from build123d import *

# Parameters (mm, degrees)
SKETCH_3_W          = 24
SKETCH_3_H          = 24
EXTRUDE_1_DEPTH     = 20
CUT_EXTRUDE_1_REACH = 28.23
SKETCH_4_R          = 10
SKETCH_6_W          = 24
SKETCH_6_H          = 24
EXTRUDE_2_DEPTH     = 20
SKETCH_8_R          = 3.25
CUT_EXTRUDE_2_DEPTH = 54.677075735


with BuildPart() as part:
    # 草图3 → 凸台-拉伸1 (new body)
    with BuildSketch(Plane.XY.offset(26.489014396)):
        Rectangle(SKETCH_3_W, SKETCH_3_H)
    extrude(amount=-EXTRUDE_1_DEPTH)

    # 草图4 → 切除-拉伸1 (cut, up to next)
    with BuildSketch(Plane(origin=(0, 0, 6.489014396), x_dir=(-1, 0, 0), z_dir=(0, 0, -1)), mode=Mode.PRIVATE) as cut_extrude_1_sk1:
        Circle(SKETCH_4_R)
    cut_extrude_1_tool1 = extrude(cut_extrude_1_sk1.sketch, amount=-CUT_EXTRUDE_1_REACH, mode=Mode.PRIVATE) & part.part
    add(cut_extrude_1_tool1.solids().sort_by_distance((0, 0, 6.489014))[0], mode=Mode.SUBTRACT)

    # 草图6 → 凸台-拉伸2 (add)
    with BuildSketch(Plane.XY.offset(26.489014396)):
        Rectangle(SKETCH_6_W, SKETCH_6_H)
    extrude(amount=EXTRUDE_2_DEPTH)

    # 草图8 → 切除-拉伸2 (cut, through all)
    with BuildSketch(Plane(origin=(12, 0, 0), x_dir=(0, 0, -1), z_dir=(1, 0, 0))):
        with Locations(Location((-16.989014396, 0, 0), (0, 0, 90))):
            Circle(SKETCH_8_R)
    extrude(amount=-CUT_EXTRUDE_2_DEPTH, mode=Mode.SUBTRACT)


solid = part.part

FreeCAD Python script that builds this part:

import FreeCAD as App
import Part
import Sketcher
from FreeCAD import Vector


def add_polygon(sketch, points):
    """Adds a closed chain of lines whose ends are joined by coincident constraints."""
    first, n = sketch.GeometryCount, len(points)
    for a, b in zip(points, points[1:] + points[:1]):
        sketch.addGeometry(Part.LineSegment(App.Vector(*a, 0), App.Vector(*b, 0)), False)
    for i in range(n):
        sketch.addConstraint(Sketcher.Constraint("Coincident", first + i, 2, first + (i + 1) % n, 1))

doc = App.newDocument("Part")
params = doc.addObject("Spreadsheet::Sheet", "Params")
for row, (alias, value) in enumerate([
    ("sketch1_width", "24 mm"),
    ("pad1_length", "20 mm"),
    ("sketch2_diameter", "20 mm"),
    ("sketch3_width", "24 mm"),
    ("pad2_length", "20 mm"),
    ("sketch4_diameter", "6.5 mm"),
], start=1):
    params.set(f"A{row}", alias)
    params.set(f"B{row}", "=" + value)
    params.setAlias(f"B{row}", alias)

body = doc.addObject("PartDesign::Body", "Body")

sketch1 = doc.addObject("Sketcher::SketchObject", "Sketch")
body.addObject(sketch1)
sketch1.AttachmentSupport = (doc.XY_Plane, [""])
sketch1.MapMode = "FlatFace"
sketch1.AttachmentOffset = App.Placement(Vector(0, 0, 26.489014), App.Rotation())
add_polygon(sketch1, [(-12, 12), (-12, -12), (12, -12), (12, 12)])
sketch1.addConstraint(Sketcher.Constraint("Vertical", 0))
sketch1.addConstraint(Sketcher.Constraint("Horizontal", 1))
sketch1.addConstraint(Sketcher.Constraint("Vertical", 2))
sketch1.addConstraint(Sketcher.Constraint("Horizontal", 3))
sketch1.addConstraint(Sketcher.Constraint("Symmetric", 0, 2, 2, 2, -1, 1))
sketch1.addConstraint(Sketcher.Constraint("Equal", 3, 0))
sketch1.addConstraint(Sketcher.Constraint("DistanceX", 1, 1, 1, 2, 24.0))
sketch1.setExpression("Constraints[10]", "Params.sketch1_width")
pad1 = doc.addObject("PartDesign::Pad", "Pad")
body.addObject(pad1)
pad1.Profile = sketch1
pad1.setExpression("Length", "Params.pad1_length")
pad1.Reversed = True

sketch2 = doc.addObject("Sketcher::SketchObject", "Sketch001")
body.addObject(sketch2)
sketch2.AttachmentSupport = (doc.XY_Plane, [""])
sketch2.MapMode = "FlatFace"
sketch2.AttachmentOffset = App.Placement(Vector(0, 0, 6.489014), App.Rotation())
sketch2.addGeometry(Part.Circle(Vector(0, 0, 0), Vector(0, 0, 1), 10), False)
sketch2.addConstraint(Sketcher.Constraint("Coincident", 0, 3, -1, 1))
sketch2.addConstraint(Sketcher.Constraint("Diameter", 0, 20.0))
sketch2.setExpression("Constraints[1]", "Params.sketch2_diameter")
pocket1 = doc.addObject("PartDesign::Pocket", "Pocket")
body.addObject(pocket1)
pocket1.Profile = sketch2
pocket1.Type = "UpToFirst"
pocket1.Reversed = True

sketch3 = doc.addObject("Sketcher::SketchObject", "Sketch002")
body.addObject(sketch3)
sketch3.AttachmentSupport = (doc.XY_Plane, [""])
sketch3.MapMode = "FlatFace"
sketch3.AttachmentOffset = App.Placement(Vector(0, 0, 26.489014), App.Rotation())
add_polygon(sketch3, [(-12, 12), (-12, -12), (12, -12), (12, 12)])
sketch3.addConstraint(Sketcher.Constraint("Vertical", 0))
sketch3.addConstraint(Sketcher.Constraint("Horizontal", 1))
sketch3.addConstraint(Sketcher.Constraint("Vertical", 2))
sketch3.addConstraint(Sketcher.Constraint("Horizontal", 3))
sketch3.addConstraint(Sketcher.Constraint("Symmetric", 0, 2, 2, 2, -1, 1))
sketch3.addConstraint(Sketcher.Constraint("Equal", 3, 0))
sketch3.addConstraint(Sketcher.Constraint("DistanceX", 1, 1, 1, 2, 24.0))
sketch3.setExpression("Constraints[10]", "Params.sketch3_width")
pad2 = doc.addObject("PartDesign::Pad", "Pad001")
body.addObject(pad2)
pad2.Profile = sketch3
pad2.setExpression("Length", "Params.pad2_length")

sketch4 = doc.addObject("Sketcher::SketchObject", "Sketch003")
body.addObject(sketch4)
sketch4.AttachmentSupport = (doc.YZ_Plane, [""])
sketch4.MapMode = "FlatFace"
sketch4.AttachmentOffset = App.Placement(Vector(0, 0, 12), App.Rotation())
sketch4.addGeometry(Part.Circle(Vector(0, 17, 0), Vector(0, 0, 1), 3.2), False)
sketch4.addConstraint(Sketcher.Constraint("PointOnObject", 0, 3, -2))
sketch4.addConstraint(Sketcher.Constraint("Diameter", 0, 6.5))
sketch4.addConstraint(Sketcher.Constraint("DistanceY", -1, 1, 0, 3, 16.989014))
sketch4.setExpression("Constraints[1]", "Params.sketch4_diameter")
pocket2 = doc.addObject("PartDesign::Pocket", "Pocket001")
body.addObject(pocket2)
pocket2.Profile = sketch4
pocket2.Type = "ThroughAll"

doc.recompute()
